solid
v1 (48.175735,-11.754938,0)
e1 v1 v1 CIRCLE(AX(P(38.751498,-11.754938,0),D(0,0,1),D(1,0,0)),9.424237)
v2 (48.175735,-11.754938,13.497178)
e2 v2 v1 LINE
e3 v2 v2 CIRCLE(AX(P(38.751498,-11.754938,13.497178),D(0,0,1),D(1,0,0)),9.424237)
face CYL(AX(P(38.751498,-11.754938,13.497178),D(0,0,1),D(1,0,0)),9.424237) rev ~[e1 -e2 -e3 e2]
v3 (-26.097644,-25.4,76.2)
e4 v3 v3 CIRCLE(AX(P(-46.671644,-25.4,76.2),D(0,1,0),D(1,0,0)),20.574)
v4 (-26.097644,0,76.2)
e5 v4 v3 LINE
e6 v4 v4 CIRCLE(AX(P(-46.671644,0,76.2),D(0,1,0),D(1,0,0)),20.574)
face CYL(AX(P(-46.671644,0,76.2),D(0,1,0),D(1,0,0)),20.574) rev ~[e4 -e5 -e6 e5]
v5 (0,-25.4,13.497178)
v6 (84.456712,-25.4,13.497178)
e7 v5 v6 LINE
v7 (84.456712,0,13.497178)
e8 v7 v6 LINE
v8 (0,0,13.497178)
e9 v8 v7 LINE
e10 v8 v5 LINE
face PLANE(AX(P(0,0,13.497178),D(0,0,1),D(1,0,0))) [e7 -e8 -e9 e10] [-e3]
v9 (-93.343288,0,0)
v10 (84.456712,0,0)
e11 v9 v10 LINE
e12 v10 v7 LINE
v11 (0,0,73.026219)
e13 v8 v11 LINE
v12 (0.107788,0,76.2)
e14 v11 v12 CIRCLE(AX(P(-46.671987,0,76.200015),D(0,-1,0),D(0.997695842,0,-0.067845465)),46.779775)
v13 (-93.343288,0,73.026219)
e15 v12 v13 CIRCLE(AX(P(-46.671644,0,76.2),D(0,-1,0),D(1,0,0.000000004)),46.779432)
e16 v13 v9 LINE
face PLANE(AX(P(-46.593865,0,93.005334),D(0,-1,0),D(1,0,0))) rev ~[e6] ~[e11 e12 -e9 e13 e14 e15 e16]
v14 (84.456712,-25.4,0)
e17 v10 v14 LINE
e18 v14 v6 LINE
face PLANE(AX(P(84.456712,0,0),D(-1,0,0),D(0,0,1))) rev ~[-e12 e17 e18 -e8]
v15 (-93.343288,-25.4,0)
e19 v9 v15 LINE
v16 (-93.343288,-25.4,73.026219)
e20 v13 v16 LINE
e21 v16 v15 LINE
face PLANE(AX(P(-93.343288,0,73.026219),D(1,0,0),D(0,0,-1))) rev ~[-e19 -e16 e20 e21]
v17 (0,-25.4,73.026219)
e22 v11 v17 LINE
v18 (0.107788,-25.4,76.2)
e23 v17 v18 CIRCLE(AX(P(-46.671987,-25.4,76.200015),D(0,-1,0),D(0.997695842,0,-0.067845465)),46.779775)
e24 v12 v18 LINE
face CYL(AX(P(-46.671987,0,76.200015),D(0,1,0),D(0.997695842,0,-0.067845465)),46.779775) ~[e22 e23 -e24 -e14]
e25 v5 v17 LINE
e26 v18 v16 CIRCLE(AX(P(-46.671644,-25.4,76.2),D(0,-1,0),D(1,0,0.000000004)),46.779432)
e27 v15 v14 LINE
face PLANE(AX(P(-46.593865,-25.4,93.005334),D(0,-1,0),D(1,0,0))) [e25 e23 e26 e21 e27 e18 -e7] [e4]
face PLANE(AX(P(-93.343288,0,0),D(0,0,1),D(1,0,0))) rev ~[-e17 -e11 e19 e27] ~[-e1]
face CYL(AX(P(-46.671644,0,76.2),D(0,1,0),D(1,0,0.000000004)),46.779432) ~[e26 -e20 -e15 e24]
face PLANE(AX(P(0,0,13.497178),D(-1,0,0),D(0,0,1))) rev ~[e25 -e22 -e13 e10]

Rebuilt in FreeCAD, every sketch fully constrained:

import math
import FreeCAD as App
import Part
import Sketcher
Q = App.Units.Quantity

doc = App.newDocument("Part")
body = doc.addObject("PartDesign::Body", "Body")

sketch1 = body.newObject("Sketcher::SketchObject", "Sketch")
sketch1.AttachmentSupport = (doc.getObject("XZ_Plane"), [""])
sketch1.MapMode = "FlatFace"
sketch1.addGeometry(Part.ArcOfCircle(Part.Circle(App.Vector(-46.7, 76.2, 0), App.Vector(0, 0, 1), 46.8), math.radians(0), math.radians(184)), False)
sketch1.addGeometry(Part.LineSegment(App.Vector(-93.3, 73, 0), App.Vector(-93.3, 0, 0)), False)
sketch1.addGeometry(Part.LineSegment(App.Vector(-93.3, 0, 0), App.Vector(84.5, 0, 0)), False)
sketch1.addGeometry(Part.LineSegment(App.Vector(84.5, 0, 0), App.Vector(84.5, 13.5, 0)), False)
sketch1.addGeometry(Part.LineSegment(App.Vector(84.5, 13.5, 0), App.Vector(0, 13.5, 0)), False)
sketch1.addGeometry(Part.LineSegment(App.Vector(0, 13.5, 0), App.Vector(0, 73, 0)), False)
sketch1.addGeometry(Part.ArcOfCircle(Part.Circle(App.Vector(-46.7, 76.2, 0), App.Vector(0, 0, 1), 46.8), math.radians(-3.89), math.radians(0)), False)
sketch1.addGeometry(Part.Circle(App.Vector(-46.7, 76.2, 0), App.Vector(0, 0, 1), 20.6), False)
sketch1.addConstraint(Sketcher.Constraint("Coincident", 0, 2, 1, 1))
sketch1.addConstraint(Sketcher.Constraint("Coincident", 1, 2, 2, 1))
sketch1.addConstraint(Sketcher.Constraint("Coincident", 2, 2, 3, 1))
sketch1.addConstraint(Sketcher.Constraint("Coincident", 3, 2, 4, 1))
sketch1.addConstraint(Sketcher.Constraint("Coincident", 4, 2, 5, 1))
sketch1.addConstraint(Sketcher.Constraint("Coincident", 5, 2, 6, 1))
sketch1.addConstraint(Sketcher.Constraint("Tangent", 6, 2, 0, 1))
sketch1.addConstraint(Sketcher.Constraint("Vertical", 1))
sketch1.addConstraint(Sketcher.Constraint("Horizontal", 2))
sketch1.addConstraint(Sketcher.Constraint("Vertical", 3))
sketch1.addConstraint(Sketcher.Constraint("Horizontal", 4))
sketch1.addConstraint(Sketcher.Constraint("Vertical", 5))
sketch1.addConstraint(Sketcher.Constraint("Coincident", 7, 3, 0, 3))
sketch1.addConstraint(Sketcher.Constraint("PointOnObject", 1, 2, -1))
sketch1.addConstraint(Sketcher.Constraint("PointOnObject", 4, 2, -2))
sketch1.addConstraint(Sketcher.Constraint("Horizontal", 0, 2, 5, 2))
sketch1.addConstraint(Sketcher.Constraint("Horizontal", 7, 3, 6, 2))
sketch1.addConstraint(Sketcher.Constraint("Diameter", 7, Q("1.62 in")))
sketch1.addConstraint(Sketcher.Constraint("DistanceX", 2, 1, 2, 2, Q("7 in")))
sketch1.addConstraint(Sketcher.Constraint("DistanceY", -1, 1, 0, 3, Q("3 in")))
sketch1.addConstraint(Sketcher.Constraint("Radius", 0, 46.779432))
sketch1.addConstraint(Sketcher.Constraint("Radius", 6, 46.779775))
sketch1.addConstraint(Sketcher.Constraint("DistanceX", 4, 2, 4, 1, 84.456712))
sketch1.addConstraint(Sketcher.Constraint("DistanceY", 5, 1, 5, 2, 59.529041))
pad1 = body.newObject("PartDesign::Pad", "Pad")
pad1.Profile = sketch1
pad1.Length = Q("1 in")

sketch2 = body.newObject("Sketcher::SketchObject", "Sketch001")
sketch2.AttachmentSupport = (doc.getObject("XY_Plane"), [""])
sketch2.MapMode = "FlatFace"
sketch2.addGeometry(Part.Circle(App.Vector(46, -12, 0), App.Vector(0, 0, 1), 10), False)
sketch2.addConstraint(Sketcher.Constraint("DistanceY", 0, 3, -1, 1, Q("0.474 in")))
sketch2.addConstraint(Sketcher.Constraint("Diameter", 0, 19.931226))
sketch2.addConstraint(Sketcher.Constraint("DistanceX", -1, 1, 0, 3, 45.747578))
pocket1 = body.newObject("PartDesign::Pocket", "Pocket")
pocket1.Profile = sketch2
pocket1.Length = Q("1 in")

sketch3 = body.newObject("Sketcher::SketchObject", "Sketch002")
sketch3.AttachmentSupport = (doc.getObject("XY_Plane"), [""])
sketch3.MapMode = "FlatFace"
sketch3.AttachmentOffset = App.Placement(App.Vector(0, 0, 13.497178), App.Rotation())
sketch3.addGeometry(Part.Circle(App.Vector(39, -12, 0), App.Vector(0, 0, 1), 9), False)
sketch3.addConstraint(Sketcher.Constraint("Diameter", 0, 18.848474))
sketch3.addConstraint(Sketcher.Constraint("DistanceX", -1, 1, 0, 3, 38.751498))
sketch3.addConstraint(Sketcher.Constraint("DistanceY", 0, 3, -1, 1, 11.754938))
pocket2 = body.newObject("PartDesign::Pocket", "Pocket001")
pocket2.Profile = sketch3
pocket2.Length = Q("1 in")

doc.recompute()
